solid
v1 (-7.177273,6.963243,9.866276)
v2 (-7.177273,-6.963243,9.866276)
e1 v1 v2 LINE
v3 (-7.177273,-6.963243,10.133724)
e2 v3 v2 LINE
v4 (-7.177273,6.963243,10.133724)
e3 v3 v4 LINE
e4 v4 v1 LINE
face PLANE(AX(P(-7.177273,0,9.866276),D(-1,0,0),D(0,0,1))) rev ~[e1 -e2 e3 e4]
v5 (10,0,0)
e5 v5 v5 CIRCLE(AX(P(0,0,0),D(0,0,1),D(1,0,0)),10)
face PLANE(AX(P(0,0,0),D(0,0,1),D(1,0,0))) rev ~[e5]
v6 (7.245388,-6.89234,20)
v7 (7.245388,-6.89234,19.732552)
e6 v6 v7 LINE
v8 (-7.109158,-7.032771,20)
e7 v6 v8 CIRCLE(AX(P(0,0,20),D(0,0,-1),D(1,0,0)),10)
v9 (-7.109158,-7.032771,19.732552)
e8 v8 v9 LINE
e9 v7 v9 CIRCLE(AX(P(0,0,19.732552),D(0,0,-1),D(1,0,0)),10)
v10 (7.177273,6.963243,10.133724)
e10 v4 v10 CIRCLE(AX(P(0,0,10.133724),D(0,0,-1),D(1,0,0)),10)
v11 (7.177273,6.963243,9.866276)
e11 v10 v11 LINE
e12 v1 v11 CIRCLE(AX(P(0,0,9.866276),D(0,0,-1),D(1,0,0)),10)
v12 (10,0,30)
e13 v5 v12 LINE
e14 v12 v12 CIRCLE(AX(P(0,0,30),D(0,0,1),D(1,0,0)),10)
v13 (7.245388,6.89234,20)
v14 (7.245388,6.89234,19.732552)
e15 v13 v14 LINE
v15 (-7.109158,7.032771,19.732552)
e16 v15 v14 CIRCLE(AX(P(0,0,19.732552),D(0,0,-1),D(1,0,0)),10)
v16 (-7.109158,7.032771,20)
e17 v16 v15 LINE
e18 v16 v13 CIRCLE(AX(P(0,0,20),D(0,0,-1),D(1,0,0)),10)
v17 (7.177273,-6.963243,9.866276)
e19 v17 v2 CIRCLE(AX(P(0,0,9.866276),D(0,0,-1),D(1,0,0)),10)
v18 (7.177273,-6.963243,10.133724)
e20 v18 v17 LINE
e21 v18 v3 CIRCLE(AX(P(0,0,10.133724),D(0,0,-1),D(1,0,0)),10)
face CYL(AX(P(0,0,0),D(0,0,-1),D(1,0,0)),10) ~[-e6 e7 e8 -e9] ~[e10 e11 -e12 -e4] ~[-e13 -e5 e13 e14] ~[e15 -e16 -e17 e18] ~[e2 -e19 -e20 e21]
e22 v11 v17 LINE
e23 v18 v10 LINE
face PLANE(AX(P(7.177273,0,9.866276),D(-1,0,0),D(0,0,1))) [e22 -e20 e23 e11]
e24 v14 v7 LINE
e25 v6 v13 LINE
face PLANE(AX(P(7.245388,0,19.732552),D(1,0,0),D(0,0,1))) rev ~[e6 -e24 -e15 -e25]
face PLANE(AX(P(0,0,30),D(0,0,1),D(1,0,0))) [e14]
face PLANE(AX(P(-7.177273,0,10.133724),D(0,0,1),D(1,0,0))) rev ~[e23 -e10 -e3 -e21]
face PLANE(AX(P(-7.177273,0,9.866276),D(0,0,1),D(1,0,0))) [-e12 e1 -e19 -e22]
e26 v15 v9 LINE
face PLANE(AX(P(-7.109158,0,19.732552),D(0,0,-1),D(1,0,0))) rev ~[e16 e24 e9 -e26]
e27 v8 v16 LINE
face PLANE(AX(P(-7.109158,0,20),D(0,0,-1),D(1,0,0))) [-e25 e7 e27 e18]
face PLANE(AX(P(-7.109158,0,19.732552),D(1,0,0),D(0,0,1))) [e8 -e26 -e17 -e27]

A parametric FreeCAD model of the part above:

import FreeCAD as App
import Part
import Sketcher

V = App.Vector


def add_polygon(sketch, points):
    """Adds a closed chain of lines whose ends are joined by coincident constraints."""
    first, n = sketch.GeometryCount, len(points)
    for a, b in zip(points, points[1:] + points[:1]):
        sketch.addGeometry(Part.LineSegment(App.Vector(*a, 0), App.Vector(*b, 0)), False)
    for i in range(n):
        sketch.addConstraint(Sketcher.Constraint("Coincident", first + i, 2, first + (i + 1) % n, 1))

doc = App.newDocument("Part")
body = doc.addObject("PartDesign::Body", "Body")

# Sketch on XY plane
sketch1 = body.newObject("Sketcher::SketchObject", "Sketch")
sketch1.AttachmentSupport = (doc.getObject("XY_Plane"), [""])
sketch1.MapMode = "FlatFace"
sketch1.addGeometry(Part.Circle(V(0, 0, 0), V(0, 0, 1), 10), False)
sketch1.addConstraint([
    Sketcher.Constraint("Coincident", 0, 3, -1, 1),
    Sketcher.Constraint("Diameter", 0, 20.0),
])
pad1 = body.newObject("PartDesign::Pad", "Pad")
pad1.Profile = sketch1
pad1.Length = 30

# Sketch on XZ plane
sketch2 = body.newObject("Sketcher::SketchObject", "Sketch001")
sketch2.AttachmentSupport = (doc.getObject("XZ_Plane"), [""])
sketch2.MapMode = "FlatFace"
add_polygon(sketch2, [(-7.18, 10.13), (-7.18, 9.87), (7.18, 9.87), (7.18, 10.13)])  # lines 0-3
add_polygon(sketch2, [(-7.11, 20), (-7.11, 19.73), (7.25, 19.73), (7.25, 20)])  # lines 4-7
sketch2.addConstraint([
    Sketcher.Constraint("Vertical", 0),
    Sketcher.Constraint("Horizontal", 1),
    Sketcher.Constraint("Vertical", 2),
    Sketcher.Constraint("Horizontal", 3),
    Sketcher.Constraint("Vertical", 4),
    Sketcher.Constraint("Horizontal", 5),
    Sketcher.Constraint("Vertical", 6),
    Sketcher.Constraint("Horizontal", 7),
    Sketcher.Constraint("Equal", 3, 5),
    Sketcher.Constraint("Equal", 2, 4),
    Sketcher.Constraint("DistanceY", -1, 1, 6, 2, 20.0),
    Sketcher.Constraint("DistanceY", 0, 2, 0, 1, 0.267448),
    Sketcher.Constraint("DistanceX", 1, 1, 1, 2, 14.354546),
    Sketcher.Constraint("DistanceX", 4, 2, 2, 2, 14.286431),
    Sketcher.Constraint("DistanceX", 0, 2, -1, 1, 7.177273),
    Sketcher.Constraint("DistanceY", -1, 1, 0, 2, 9.866276),
])
pocket1 = body.newObject("PartDesign::Pocket", "Pocket")
pocket1.Profile = sketch2
pocket1.Length = 25.4
pocket1.Midplane = True

doc.recompute()
